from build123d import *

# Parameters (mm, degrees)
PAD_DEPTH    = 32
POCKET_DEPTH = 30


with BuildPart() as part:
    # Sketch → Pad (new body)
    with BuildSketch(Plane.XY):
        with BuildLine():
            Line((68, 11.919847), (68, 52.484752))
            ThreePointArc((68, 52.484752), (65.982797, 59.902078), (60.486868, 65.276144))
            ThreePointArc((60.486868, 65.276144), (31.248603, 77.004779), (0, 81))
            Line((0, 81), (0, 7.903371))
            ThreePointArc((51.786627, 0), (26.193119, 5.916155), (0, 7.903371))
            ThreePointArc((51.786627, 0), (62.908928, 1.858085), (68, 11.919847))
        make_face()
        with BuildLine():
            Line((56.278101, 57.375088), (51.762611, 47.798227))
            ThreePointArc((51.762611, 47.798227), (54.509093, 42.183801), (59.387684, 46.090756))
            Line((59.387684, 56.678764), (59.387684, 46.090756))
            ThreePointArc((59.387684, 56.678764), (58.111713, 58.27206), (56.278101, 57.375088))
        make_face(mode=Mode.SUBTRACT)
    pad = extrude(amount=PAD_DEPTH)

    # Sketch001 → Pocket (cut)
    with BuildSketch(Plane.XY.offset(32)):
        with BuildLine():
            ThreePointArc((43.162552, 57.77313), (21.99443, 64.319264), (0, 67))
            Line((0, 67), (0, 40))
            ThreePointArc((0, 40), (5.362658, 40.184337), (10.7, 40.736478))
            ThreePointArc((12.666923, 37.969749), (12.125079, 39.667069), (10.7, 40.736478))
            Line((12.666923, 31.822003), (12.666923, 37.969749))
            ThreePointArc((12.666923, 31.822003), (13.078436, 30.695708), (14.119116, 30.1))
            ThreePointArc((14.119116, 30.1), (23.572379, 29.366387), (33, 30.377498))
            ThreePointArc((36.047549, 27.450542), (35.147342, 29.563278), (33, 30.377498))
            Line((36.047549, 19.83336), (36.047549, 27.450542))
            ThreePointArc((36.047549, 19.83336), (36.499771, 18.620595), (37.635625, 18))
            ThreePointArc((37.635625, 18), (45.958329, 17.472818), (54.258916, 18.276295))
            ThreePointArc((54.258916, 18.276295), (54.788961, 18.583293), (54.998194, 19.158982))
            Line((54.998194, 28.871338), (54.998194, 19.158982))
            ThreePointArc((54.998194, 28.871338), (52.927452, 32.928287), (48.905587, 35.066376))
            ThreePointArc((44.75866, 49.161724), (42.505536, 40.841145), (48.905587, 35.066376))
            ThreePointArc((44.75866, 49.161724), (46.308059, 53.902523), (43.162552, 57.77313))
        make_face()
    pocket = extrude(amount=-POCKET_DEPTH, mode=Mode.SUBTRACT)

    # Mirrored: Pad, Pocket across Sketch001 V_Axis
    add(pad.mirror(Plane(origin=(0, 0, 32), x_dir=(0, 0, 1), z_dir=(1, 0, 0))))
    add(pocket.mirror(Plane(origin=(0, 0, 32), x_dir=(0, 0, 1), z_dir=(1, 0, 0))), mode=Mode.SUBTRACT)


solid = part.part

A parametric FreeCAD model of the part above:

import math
import FreeCAD as App
import Part
import Sketcher

V = App.Vector

doc = App.newDocument("Part")
params = doc.addObject("Spreadsheet::Sheet", "Params")
for row, (alias, value) in enumerate([
    ("pad1_length", "32 mm"),
    ("sketch2_height", "27 mm"),
    ("pocket1_length", "30 mm"),
], start=1):
    params.set(f"A{row}", alias)
    params.set(f"B{row}", "=" + value)
    params.setAlias(f"B{row}", alias)

body = doc.addObject("PartDesign::Body", "Body")

sketch1 = doc.addObject("Sketcher::SketchObject", "Sketch")
body.addObject(sketch1)
sketch1.AttachmentSupport = (doc.XY_Plane, [""])
sketch1.MapMode = "FlatFace"
sketch1.addGeometry([
    Part.LineSegment(V(68, 11.9, 0), V(68, 52.5, 0)),
    Part.ArcOfCircle(Part.Circle(V(53.4, 52.5, 0), V(0, 0, 1), 14.6), math.radians(0), math.radians(61)),
    Part.ArcOfCircle(Part.Circle(V(0, -43.2, 0), V(0, 0, 1), 124.2), math.radians(61), math.radians(90)),
    Part.LineSegment(V(0, 81, 0), V(0, 7.9, 0)),
    Part.ArcOfCircle(Part.Circle(V(0, -165.7, 0), V(0, 0, 1), 173.6), math.radians(72.65), math.radians(90)),
    Part.ArcOfCircle(Part.Circle(V(55.5, 11.9, 0), V(0, 0, 1), 12.5), math.radians(-107), math.radians(0)),
    Part.LineSegment(V(51.8, 47.8, 0), V(56.3, 57.4, 0)),
    Part.ArcOfCircle(Part.Circle(V(57.8, 56.7, 0), V(0, 0, 1), 1.6), math.radians(0), math.radians(155)),
    Part.LineSegment(V(59.4, 56.7, 0), V(59.4, 46.1, 0)),
    Part.ArcOfCircle(Part.Circle(V(55.4, 46.1, 0), V(0, 0, 1), 4), math.radians(155), math.radians(360)),
], False)
sketch1.addConstraint([
    Sketcher.Constraint("Tangent", 0, 2, 1, 1),
    Sketcher.Constraint("Tangent", 1, 2, 2, 1),
    Sketcher.Constraint("Coincident", 2, 2, 3, 1),
    Sketcher.Constraint("Coincident", 3, 2, 4, 2),
    Sketcher.Constraint("Tangent", 4, 1, 5, 1),
    Sketcher.Constraint("Tangent", 5, 2, 0, 1),
    Sketcher.Constraint("Tangent", 6, 2, 7, 2),
    Sketcher.Constraint("Tangent", 7, 1, 8, 1),
    Sketcher.Constraint("Tangent", 8, 2, 9, 2),
    Sketcher.Constraint("Tangent", 9, 1, 6, 1),
    Sketcher.Constraint("Vertical", 0),
    Sketcher.Constraint("Vertical", 3),
    Sketcher.Constraint("Vertical", 8),
    Sketcher.Constraint("PointOnObject", 2, 3, -2),
    Sketcher.Constraint("PointOnObject", 2, 2, -2),
    Sketcher.Constraint("PointOnObject", 4, 1, -1),
    Sketcher.Constraint("DistanceX", -1, 1, 0, 2, 68.0),
    Sketcher.Constraint("DistanceY", -1, 1, 2, 2, 81.0),
    Sketcher.Constraint("Radius", 2, 124.203029),
    Sketcher.Constraint("Radius", 4, 173.616971),
    Sketcher.Constraint("Radius", 5, 12.48834),
    Sketcher.Constraint("Radius", 1, 14.645477),
    Sketcher.Constraint("Radius", 7, 1.632755),
    Sketcher.Constraint("Radius", 9, 4.003712),
    Sketcher.Constraint("DistanceY", 9, 3, 1, 3, 6.393998),
    Sketcher.Constraint("DistanceY", 3, 2, 3, 1, 73.096629),
    Sketcher.Constraint("DistanceY", 8, 2, 8, 1, 10.588008),
    Sketcher.Constraint("DistanceX", -1, 1, 6, 2, 56.278101),
])
pad1 = doc.addObject("PartDesign::Pad", "Pad")
body.addObject(pad1)
pad1.Profile = sketch1
pad1.setExpression("Length", "Params.pad1_length")

sketch2 = doc.addObject("Sketcher::SketchObject", "Sketch001")
body.addObject(sketch2)
sketch2.AttachmentSupport = (doc.XY_Plane, [""])
sketch2.MapMode = "FlatFace"
sketch2.AttachmentOffset = App.Placement(V(0, 0, 32), App.Rotation())
sketch2.addGeometry([
    Part.ArcOfCircle(Part.Circle(V(-3.969859, -57.139581, 0), V(0, 0, 1), 124.203041), math.radians(67.698603), math.radians(88.168363)),
    Part.LineSegment(V(0, 67, 0), V(0, 40, 0)),
    Part.ArcOfCircle(Part.Circle(V(0.000002, 118.096266, 0), V(0, 0, 1), 78.096266), math.radians(-90.000001), math.radians(-82.125114)),
    Part.ArcOfCircle(Part.Circle(V(9.737581, 37.969748, 0), V(0, 0, 1), 2.929342), math.radians(0.000014), math.radians(70.819551)),
    Part.LineSegment(V(12.666923, 37.969749, 0), V(12.666923, 31.822003, 0)),
    Part.ArcOfCircle(Part.Circle(V(14.413989, 31.822002, 0), V(0, 0, 1), 1.747066), math.radians(179.999967), math.radians(260.282987)),
    Part.ArcOfCircle(Part.Circle(V(22.815218, 80.883396, 0), V(0, 0, 1), 51.522572), math.radians(-99.717032), math.radians(-78.598903)),
    Part.ArcOfCircle(Part.Circle(V(33.118206, 27.450541, 0), V(0, 0, 1), 2.929343), math.radians(0.000017), math.radians(92.312653)),
    Part.LineSegment(V(36.047549, 27.450542, 0), V(36.047549, 19.83336, 0)),
    Part.ArcOfCircle(Part.Circle(V(37.899852, 19.83336, 0), V(0, 0, 1), 1.852303), math.radians(-179.999996), math.radians(-98.201085)),
    Part.ArcOfCircle(Part.Circle(V(45.089894, 69.722203, 0), V(0, 0, 1), 52.256601), math.radians(-98.20107), math.radians(-79.894484)),
    Part.ArcOfCircle(Part.Circle(V(54.101599, 19.15898, 0), V(0, 0, 1), 0.896595), math.radians(-79.894562), math.radians(0.000105)),
    Part.LineSegment(V(54.998194, 19.158982, 0), V(54.998194, 28.871338, 0)),
    Part.ArcOfCircle(Part.Circle(V(47.52218, 27.612389, 0), V(0, 0, 1), 7.581276), math.radians(9.558837), math.radians(79.485939)),
    Part.ArcOfCircle(Part.Circle(V(50.408886, 43.166353, 0), V(0, 0, 1), 8.238297), math.radians(133.302398), math.radians(259.485934)),
    Part.ArcOfCircle(Part.Circle(V(41.185568, 52.953079, 0), V(0, 0, 1), 5.209737), math.radians(-46.697599), math.radians(67.698606)),
], False)
sketch2.addConstraint([
    Sketcher.Constraint("Coincident", 0, 2, 1, 1),
    Sketcher.Constraint("Coincident", 1, 2, 2, 1),
    Sketcher.Constraint("Coincident", 2, 2, 3, 2),
    Sketcher.Constraint("Coincident", 3, 1, 4, 1),
    Sketcher.Constraint("Coincident", 4, 2, 5, 1),
    Sketcher.Constraint("Coincident", 5, 2, 6, 1),
    Sketcher.Constraint("Coincident", 6, 2, 7, 2),
    Sketcher.Constraint("Coincident", 7, 1, 8, 1),
    Sketcher.Constraint("Coincident", 8, 2, 9, 1),
    Sketcher.Constraint("Coincident", 9, 2, 10, 1),
    Sketcher.Constraint("Coincident", 10, 2, 11, 1),
    Sketcher.Constraint("Coincident", 11, 2, 12, 1),
    Sketcher.Constraint("Coincident", 12, 2, 13, 1),
    Sketcher.Constraint("Coincident", 13, 2, 14, 2),
    Sketcher.Constraint("Coincident", 14, 1, 15, 1),
    Sketcher.Constraint("Coincident", 15, 2, 0, 1),
    Sketcher.Constraint("Vertical", 1),
    Sketcher.Constraint("Vertical", 4),
    Sketcher.Constraint("Vertical", 8),
    Sketcher.Constraint("Vertical", 12),
    Sketcher.Constraint("PointOnObject", 2, 3, -2),
    Sketcher.Constraint("PointOnObject", 0, 2, -2),
    Sketcher.Constraint("DistanceY", 1, 2, 1, 1, 27.0),
    Sketcher.Constraint("DistanceY", -1, 1, 0, 2, 67.0),
    Sketcher.Constraint("DistanceX", -1, 1, 6, 2, 33.0),
    Sketcher.Constraint("DistanceY", -1, 1, 9, 2, 18.0),
    Sketcher.Constraint("DistanceX", -1, 1, 2, 2, 10.7),
    Sketcher.Constraint("DistanceY", -1, 1, 5, 2, 30.1),
    Sketcher.Constraint("Radius", 10, 52.256601),
    Sketcher.Constraint("Radius", 0, 124.203041),
    Sketcher.Constraint("Radius", 3, 2.929342),
    Sketcher.Constraint("Radius", 2, 78.096266),
    Sketcher.Constraint("Radius", 5, 1.747066),
    Sketcher.Constraint("Radius", 6, 51.522572),
    Sketcher.Constraint("Radius", 7, 2.929343),
    Sketcher.Constraint("Radius", 9, 1.852303),
    Sketcher.Constraint("Radius", 11, 0.896595),
    Sketcher.Constraint("Radius", 13, 7.581276),
    Sketcher.Constraint("Radius", 14, 8.238297),
    Sketcher.Constraint("Radius", 15, 5.209737),
    Sketcher.Constraint("DistanceY", 8, 2, 8, 1, 7.617182),
    Sketcher.Constraint("DistanceX", -1, 1, 11, 3, 54.101599),
    Sketcher.Constraint("DistanceY", -1, 1, 6, 2, 30.377498),
    Sketcher.Constraint("DistanceY", 5, 3, 10, 3, 37.900201),
    Sketcher.Constraint("DistanceX", 3, 3, 13, 3, 37.784599),
    Sketcher.Constraint("DistanceX", 13, 2, 14, 3, 1.503299),
    Sketcher.Constraint("DistanceY", 4, 2, 4, 1, 6.147746),
    Sketcher.Constraint("DistanceY", 12, 1, 12, 2, 9.712356),
    Sketcher.Constraint("DistanceX", 0, 3, -1, 1, 3.969859),
    Sketcher.Constraint("DistanceX", -1, 1, 3, 3, 9.737581),
    Sketcher.Constraint("DistanceX", -1, 1, 6, 3, 22.815218),
    Sketcher.Constraint("DistanceY", -1, 1, 7, 3, 27.450541),
    Sketcher.Constraint("DistanceY", -1, 1, 9, 3, 19.83336),
    Sketcher.Constraint("DistanceY", -1, 1, 13, 3, 27.612389),
    Sketcher.Constraint("DistanceY", -1, 1, 15, 3, 52.953079),
    Sketcher.Constraint("DistanceY", -1, 1, 3, 1, 37.969749),
    Sketcher.Constraint("DistanceY", -1, 1, 7, 1, 27.450542),
    Sketcher.Constraint("DistanceX", -1, 1, 14, 1, 44.75866),
    Sketcher.Constraint("DistanceY", -1, 1, 15, 2, 57.77313),
    Sketcher.Constraint("DistanceX", 9, 2, 10, 2, 16.623291),
])
sketch2.setExpression("Constraints[22]", "Params.sketch2_height")
pocket1 = doc.addObject("PartDesign::Pocket", "Pocket")
body.addObject(pocket1)
pocket1.Profile = sketch2
pocket1.setExpression("Length", "Params.pocket1_length")
doc.recompute()

mirrored = doc.addObject("PartDesign::Mirrored", "Mirrored")
body.addObject(mirrored)
mirrored.Originals = [pad1, pocket1]
mirrored.MirrorPlane = (doc.YZ_Plane, [""])
body.Tip = mirrored

doc.recompute()
